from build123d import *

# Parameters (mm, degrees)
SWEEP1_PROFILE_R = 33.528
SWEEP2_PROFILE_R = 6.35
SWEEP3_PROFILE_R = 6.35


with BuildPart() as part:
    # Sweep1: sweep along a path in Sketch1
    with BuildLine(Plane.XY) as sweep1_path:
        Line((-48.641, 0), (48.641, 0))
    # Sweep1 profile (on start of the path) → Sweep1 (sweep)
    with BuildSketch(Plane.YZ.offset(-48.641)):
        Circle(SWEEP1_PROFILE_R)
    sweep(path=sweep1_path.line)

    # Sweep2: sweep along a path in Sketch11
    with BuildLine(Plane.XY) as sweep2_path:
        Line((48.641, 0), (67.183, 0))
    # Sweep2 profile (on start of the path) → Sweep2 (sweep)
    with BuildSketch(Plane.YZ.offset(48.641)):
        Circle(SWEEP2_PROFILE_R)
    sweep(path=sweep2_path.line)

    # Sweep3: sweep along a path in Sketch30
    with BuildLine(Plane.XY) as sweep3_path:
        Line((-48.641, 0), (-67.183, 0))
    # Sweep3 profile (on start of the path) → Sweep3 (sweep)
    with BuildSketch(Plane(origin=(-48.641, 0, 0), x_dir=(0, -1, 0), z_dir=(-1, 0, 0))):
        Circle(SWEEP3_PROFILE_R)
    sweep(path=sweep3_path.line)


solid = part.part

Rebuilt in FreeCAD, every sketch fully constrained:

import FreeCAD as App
import Part
import Sketcher
from FreeCAD import Vector
Q = App.Units.Quantity

doc = App.newDocument("Part")
params = doc.addObject("Spreadsheet::Sheet", "Params")
for row, (alias, value) in enumerate([
    ("sketch1_diameter", "2.64 in"),
    ("sketch2_width", "3.83 in"),
    ("sketch3_diameter", "0.5 in"),
    ("sketch4_width", "0.73 in"),
    ("sketch5_diameter", "0.5 in"),
    ("sketch6_width", "0.73 in"),
], start=1):
    params.set(f"A{row}", alias)
    params.set(f"B{row}", "=" + value)
    params.setAlias(f"B{row}", alias)

body = doc.addObject("PartDesign::Body", "Body")

sketch1 = doc.addObject("Sketcher::SketchObject", "Sketch")
body.addObject(sketch1)
sketch1.AttachmentSupport = (doc.YZ_Plane, [""])
sketch1.MapMode = "FlatFace"
sketch1.AttachmentOffset = App.Placement(Vector(0, 0, -1.915 * 25.4), App.Rotation())
sketch1.addGeometry(Part.Circle(Vector(0, 0, 0), Vector(0, 0, 1), 34), False)
sketch1.addConstraint([
    Sketcher.Constraint("Coincident", 0, 3, -1, 1),
    Sketcher.Constraint("Diameter", 0, Q("2.64 in")),
])
sketch1.setExpression("Constraints[1]", "Params.sketch1_diameter")

sketch2 = doc.addObject("Sketcher::SketchObject", "Sketch001")
body.addObject(sketch2)
sketch2.AttachmentSupport = (doc.XY_Plane, [""])
sketch2.MapMode = "FlatFace"
sketch2.addGeometry(Part.LineSegment(Vector(-49, 0, 0), Vector(49, 0, 0)), False)
sketch2.addConstraint([
    Sketcher.Constraint("Horizontal", 0),
    Sketcher.Constraint("Symmetric", 0, 1, 0, 2, -1, 1),
    Sketcher.Constraint("DistanceX", 0, 1, 0, 2, Q("3.83 in")),
])
sketch2.setExpression("Constraints[2]", "Params.sketch2_width")
doc.recompute()

additivepipe = doc.addObject("PartDesign::AdditivePipe", "AdditivePipe")
body.addObject(additivepipe)
additivepipe.Profile = sketch1
additivepipe.Spine = (sketch2, ["Edge1"])

sketch3 = doc.addObject("Sketcher::SketchObject", "Sketch002")
body.addObject(sketch3)
sketch3.AttachmentSupport = (doc.YZ_Plane, [""])
sketch3.MapMode = "FlatFace"
sketch3.AttachmentOffset = App.Placement(Vector(0, 0, 1.915 * 25.4), App.Rotation())
sketch3.addGeometry(Part.Circle(Vector(0, 0, 0), Vector(0, 0, 1), 6), False)
sketch3.addConstraint([
    Sketcher.Constraint("Coincident", 0, 3, -1, 1),
    Sketcher.Constraint("Diameter", 0, Q("0.5 in")),
])
sketch3.setExpression("Constraints[1]", "Params.sketch3_diameter")

sketch4 = doc.addObject("Sketcher::SketchObject", "Sketch003")
body.addObject(sketch4)
sketch4.AttachmentSupport = (doc.XY_Plane, [""])
sketch4.MapMode = "FlatFace"
sketch4.addGeometry(Part.LineSegment(Vector(49, 0, 0), Vector(67, 0, 0)), False)
sketch4.addConstraint([
    Sketcher.Constraint("Horizontal", 0),
    Sketcher.Constraint("PointOnObject", 0, 1, -1),
    Sketcher.Constraint("DistanceX", 0, 1, 0, 2, Q("0.73 in")),
    Sketcher.Constraint("DistanceX", -1, 1, 0, 1, Q("1.915 in")),
])
sketch4.setExpression("Constraints[2]", "Params.sketch4_width")
doc.recompute()

additivepipe2 = doc.addObject("PartDesign::AdditivePipe", "AdditivePipe001")
body.addObject(additivepipe2)
additivepipe2.Profile = sketch3
additivepipe2.Spine = (sketch4, ["Edge1"])

sketch5 = doc.addObject("Sketcher::SketchObject", "Sketch004")
body.addObject(sketch5)
sketch5.AttachmentSupport = (doc.YZ_Plane, [""])
sketch5.MapMode = "FlatFace"
sketch5.AttachmentOffset = App.Placement(Vector(0, 0, -1.915 * 25.4), App.Rotation())
sketch5.addGeometry(Part.Circle(Vector(0, 0, 0), Vector(0, 0, 1), 6), False)
sketch5.addConstraint([
    Sketcher.Constraint("Coincident", 0, 3, -1, 1),
    Sketcher.Constraint("Diameter", 0, Q("0.5 in")),
])
sketch5.setExpression("Constraints[1]", "Params.sketch5_diameter")

sketch6 = doc.addObject("Sketcher::SketchObject", "Sketch005")
body.addObject(sketch6)
sketch6.AttachmentSupport = (doc.XY_Plane, [""])
sketch6.MapMode = "FlatFace"
sketch6.addGeometry(Part.LineSegment(Vector(-49, 0, 0), Vector(-67, 0, 0)), False)
sketch6.addConstraint([
    Sketcher.Constraint("Horizontal", 0),
    Sketcher.Constraint("PointOnObject", 0, 1, -1),
    Sketcher.Constraint("DistanceX", 0, 2, 0, 1, Q("0.73 in")),
    Sketcher.Constraint("DistanceX", 0, 1, -1, 1, Q("1.915 in")),
])
sketch6.setExpression("Constraints[2]", "Params.sketch6_width")
doc.recompute()

additivepipe3 = doc.addObject("PartDesign::AdditivePipe", "AdditivePipe002")
body.addObject(additivepipe3)
additivepipe3.Profile = sketch5
additivepipe3.Spine = (sketch6, ["Edge1"])

doc.recompute()
